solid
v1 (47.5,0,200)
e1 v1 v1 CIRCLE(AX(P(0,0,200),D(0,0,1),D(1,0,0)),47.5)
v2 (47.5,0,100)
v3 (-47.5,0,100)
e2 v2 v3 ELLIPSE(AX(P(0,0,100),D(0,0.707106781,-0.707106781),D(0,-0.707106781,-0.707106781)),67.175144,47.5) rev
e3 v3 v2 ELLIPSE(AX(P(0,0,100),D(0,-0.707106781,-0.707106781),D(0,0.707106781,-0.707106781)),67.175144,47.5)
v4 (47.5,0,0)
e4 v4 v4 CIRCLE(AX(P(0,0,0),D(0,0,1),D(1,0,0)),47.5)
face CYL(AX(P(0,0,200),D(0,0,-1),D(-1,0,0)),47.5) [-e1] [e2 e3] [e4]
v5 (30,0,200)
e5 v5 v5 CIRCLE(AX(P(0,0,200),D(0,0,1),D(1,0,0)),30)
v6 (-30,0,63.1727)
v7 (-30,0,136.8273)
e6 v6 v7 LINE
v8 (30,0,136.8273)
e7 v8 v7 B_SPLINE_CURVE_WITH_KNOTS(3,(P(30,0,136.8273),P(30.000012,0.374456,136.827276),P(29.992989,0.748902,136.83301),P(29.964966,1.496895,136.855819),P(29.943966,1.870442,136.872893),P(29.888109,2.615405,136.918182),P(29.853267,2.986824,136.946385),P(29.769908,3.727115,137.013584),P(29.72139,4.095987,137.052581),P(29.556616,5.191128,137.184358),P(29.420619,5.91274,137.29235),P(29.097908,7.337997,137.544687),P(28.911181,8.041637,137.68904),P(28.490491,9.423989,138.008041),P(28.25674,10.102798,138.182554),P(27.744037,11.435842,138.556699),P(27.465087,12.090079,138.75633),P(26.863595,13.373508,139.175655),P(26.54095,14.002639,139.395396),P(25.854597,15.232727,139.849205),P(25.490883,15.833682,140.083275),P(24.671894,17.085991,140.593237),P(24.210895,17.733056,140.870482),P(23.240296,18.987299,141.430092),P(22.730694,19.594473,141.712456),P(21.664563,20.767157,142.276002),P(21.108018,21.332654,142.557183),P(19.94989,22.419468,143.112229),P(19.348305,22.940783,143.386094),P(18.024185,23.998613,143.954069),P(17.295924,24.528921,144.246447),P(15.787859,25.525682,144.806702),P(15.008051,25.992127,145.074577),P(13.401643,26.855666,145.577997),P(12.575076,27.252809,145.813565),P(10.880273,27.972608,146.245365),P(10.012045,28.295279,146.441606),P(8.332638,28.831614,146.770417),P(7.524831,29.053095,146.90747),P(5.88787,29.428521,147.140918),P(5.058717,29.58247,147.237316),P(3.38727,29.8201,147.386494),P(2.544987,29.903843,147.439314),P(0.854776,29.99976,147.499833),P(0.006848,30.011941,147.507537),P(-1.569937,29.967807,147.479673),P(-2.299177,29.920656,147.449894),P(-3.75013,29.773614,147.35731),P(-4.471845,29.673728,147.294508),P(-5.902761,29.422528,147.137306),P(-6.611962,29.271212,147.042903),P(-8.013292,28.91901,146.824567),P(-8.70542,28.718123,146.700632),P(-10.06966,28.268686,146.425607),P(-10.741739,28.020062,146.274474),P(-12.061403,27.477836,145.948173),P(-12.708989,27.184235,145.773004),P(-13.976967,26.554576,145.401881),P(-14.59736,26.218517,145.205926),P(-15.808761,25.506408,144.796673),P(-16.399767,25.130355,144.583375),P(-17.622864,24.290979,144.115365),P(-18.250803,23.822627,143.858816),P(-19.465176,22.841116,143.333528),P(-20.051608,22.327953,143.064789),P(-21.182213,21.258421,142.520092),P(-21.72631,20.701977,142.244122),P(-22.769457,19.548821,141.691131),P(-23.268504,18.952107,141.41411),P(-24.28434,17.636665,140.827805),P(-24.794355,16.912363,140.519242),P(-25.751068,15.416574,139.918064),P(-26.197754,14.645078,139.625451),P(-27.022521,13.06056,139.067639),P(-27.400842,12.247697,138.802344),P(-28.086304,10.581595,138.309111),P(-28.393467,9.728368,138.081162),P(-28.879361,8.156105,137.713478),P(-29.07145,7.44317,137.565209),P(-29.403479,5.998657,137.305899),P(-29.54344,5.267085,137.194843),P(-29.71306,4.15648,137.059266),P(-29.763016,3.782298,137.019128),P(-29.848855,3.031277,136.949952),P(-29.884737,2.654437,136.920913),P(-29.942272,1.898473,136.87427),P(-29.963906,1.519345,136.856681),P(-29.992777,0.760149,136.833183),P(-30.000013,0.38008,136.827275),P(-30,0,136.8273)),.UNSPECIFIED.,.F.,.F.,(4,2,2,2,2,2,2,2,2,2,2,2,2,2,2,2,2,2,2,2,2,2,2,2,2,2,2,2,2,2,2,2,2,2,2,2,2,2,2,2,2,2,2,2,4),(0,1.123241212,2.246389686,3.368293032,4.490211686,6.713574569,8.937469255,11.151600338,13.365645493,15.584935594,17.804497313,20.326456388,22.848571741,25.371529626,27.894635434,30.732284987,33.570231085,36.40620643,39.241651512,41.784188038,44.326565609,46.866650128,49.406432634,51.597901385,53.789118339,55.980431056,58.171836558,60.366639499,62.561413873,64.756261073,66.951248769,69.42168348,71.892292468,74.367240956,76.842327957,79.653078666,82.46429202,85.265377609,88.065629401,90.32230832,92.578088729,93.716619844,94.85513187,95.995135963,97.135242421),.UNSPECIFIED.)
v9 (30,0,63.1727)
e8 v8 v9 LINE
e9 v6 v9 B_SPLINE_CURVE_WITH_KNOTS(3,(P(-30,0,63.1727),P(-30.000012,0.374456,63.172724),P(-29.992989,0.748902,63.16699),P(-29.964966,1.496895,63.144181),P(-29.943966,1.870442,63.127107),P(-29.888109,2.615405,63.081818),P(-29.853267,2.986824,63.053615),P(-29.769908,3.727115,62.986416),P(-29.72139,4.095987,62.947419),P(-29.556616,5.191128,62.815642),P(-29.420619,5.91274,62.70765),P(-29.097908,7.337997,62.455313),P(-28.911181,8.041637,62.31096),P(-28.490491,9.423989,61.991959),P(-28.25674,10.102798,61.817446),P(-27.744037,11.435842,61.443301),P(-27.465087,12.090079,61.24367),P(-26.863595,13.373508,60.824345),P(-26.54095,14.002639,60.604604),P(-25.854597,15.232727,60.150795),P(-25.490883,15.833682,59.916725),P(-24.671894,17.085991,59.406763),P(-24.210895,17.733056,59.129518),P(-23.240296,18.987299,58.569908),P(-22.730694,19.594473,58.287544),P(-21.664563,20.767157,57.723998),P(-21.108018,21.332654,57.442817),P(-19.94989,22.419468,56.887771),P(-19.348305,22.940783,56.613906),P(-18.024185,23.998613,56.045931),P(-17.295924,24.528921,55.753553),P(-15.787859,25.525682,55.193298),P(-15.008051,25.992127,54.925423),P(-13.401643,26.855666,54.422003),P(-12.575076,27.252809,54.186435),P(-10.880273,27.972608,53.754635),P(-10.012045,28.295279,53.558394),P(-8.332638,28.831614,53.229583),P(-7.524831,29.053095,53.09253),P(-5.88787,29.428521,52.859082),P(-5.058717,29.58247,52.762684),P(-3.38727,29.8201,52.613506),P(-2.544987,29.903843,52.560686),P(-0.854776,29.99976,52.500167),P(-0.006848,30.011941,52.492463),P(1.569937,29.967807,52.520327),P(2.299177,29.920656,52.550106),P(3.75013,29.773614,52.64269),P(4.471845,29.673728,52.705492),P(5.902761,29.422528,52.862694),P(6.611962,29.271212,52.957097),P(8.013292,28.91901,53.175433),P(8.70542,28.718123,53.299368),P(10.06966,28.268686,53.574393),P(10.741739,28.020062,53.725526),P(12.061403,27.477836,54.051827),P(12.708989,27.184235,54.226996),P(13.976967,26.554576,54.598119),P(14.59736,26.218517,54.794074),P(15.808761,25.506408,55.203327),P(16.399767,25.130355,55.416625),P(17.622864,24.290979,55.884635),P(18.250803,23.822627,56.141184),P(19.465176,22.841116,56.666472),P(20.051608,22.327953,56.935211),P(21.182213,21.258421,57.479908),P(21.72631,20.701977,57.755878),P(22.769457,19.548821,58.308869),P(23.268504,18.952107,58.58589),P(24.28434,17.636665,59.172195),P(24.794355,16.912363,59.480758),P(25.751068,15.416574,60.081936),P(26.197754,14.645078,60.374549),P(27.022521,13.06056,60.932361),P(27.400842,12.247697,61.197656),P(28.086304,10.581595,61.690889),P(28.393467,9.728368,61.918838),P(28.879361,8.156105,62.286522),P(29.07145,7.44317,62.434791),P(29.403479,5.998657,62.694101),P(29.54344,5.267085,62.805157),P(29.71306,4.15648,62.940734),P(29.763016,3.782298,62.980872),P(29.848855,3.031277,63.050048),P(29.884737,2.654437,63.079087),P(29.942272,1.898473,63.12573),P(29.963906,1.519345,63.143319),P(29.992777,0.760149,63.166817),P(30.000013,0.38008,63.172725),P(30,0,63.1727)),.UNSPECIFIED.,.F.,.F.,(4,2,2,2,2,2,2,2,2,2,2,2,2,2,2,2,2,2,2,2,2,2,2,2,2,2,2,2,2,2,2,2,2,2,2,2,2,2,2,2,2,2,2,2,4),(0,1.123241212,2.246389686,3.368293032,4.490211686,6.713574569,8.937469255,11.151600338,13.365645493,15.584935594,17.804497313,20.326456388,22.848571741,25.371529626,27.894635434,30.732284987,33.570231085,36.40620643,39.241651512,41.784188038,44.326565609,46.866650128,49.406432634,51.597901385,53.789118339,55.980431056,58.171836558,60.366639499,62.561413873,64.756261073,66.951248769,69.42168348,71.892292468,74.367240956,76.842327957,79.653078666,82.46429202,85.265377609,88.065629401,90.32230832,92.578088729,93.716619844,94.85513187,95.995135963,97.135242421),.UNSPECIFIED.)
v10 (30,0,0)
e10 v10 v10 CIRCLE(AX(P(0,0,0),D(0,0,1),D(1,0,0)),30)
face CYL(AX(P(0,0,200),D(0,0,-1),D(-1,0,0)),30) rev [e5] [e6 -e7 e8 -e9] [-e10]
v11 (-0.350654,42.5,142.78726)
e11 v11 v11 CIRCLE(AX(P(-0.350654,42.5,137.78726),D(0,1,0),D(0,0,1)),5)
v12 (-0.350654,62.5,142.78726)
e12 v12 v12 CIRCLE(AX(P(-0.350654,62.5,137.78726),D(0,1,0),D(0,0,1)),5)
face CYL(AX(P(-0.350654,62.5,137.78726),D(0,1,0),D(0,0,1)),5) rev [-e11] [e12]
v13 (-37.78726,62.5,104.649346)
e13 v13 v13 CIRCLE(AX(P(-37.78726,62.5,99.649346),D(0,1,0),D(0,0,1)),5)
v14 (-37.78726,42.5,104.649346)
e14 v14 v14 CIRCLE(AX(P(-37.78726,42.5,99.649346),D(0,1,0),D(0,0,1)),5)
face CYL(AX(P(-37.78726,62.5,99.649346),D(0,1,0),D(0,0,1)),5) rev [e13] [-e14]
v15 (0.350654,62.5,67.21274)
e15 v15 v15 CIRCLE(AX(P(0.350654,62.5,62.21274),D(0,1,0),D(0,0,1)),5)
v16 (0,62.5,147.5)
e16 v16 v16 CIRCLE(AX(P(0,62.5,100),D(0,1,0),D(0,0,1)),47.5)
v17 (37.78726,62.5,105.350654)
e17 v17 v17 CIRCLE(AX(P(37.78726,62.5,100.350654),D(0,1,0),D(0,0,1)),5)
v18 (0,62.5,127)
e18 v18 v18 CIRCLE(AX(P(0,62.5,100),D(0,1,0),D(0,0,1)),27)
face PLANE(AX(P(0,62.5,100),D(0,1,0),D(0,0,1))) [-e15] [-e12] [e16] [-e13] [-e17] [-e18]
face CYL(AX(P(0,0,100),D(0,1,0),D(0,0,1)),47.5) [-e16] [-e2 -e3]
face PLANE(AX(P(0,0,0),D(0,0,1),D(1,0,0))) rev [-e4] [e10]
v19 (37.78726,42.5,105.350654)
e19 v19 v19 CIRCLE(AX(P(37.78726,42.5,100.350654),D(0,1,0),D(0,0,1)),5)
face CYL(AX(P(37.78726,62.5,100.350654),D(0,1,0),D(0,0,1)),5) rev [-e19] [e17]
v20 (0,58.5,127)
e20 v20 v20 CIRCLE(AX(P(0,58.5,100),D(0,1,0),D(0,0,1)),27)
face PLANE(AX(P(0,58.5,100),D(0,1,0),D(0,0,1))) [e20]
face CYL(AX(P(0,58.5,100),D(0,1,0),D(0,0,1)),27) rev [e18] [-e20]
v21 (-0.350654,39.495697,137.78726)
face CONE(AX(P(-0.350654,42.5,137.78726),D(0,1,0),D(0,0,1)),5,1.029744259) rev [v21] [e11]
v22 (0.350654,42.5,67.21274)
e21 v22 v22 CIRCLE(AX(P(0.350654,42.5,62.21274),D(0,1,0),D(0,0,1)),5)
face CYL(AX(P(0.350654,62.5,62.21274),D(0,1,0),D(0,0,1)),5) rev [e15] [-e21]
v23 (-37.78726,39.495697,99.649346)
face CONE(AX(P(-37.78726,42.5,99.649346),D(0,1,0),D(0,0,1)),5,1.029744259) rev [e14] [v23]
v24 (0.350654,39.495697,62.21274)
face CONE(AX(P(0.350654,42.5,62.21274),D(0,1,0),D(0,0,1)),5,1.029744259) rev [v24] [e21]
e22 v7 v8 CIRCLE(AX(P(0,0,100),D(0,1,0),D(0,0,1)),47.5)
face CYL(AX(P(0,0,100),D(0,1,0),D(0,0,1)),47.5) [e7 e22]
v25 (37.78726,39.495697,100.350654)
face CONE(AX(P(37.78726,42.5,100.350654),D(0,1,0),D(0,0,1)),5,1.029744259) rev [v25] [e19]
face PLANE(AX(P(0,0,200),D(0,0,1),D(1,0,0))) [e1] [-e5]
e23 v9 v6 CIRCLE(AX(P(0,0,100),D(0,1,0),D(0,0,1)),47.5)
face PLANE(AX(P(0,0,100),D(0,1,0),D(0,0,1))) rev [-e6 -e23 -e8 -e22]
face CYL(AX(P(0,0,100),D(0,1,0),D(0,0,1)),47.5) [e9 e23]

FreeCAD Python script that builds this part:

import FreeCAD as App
import Part
import Sketcher
Q = App.Units.Quantity


def add_polygon(sketch, points):
    """Adds a closed chain of lines whose ends are joined by coincident constraints."""
    first, n = sketch.GeometryCount, len(points)
    for a, b in zip(points, points[1:] + points[:1]):
        sketch.addGeometry(Part.LineSegment(App.Vector(*a, 0), App.Vector(*b, 0)), False)
    for i in range(n):
        sketch.addConstraint(Sketcher.Constraint("Coincident", first + i, 2, first + (i + 1) % n, 1))

doc = App.newDocument("Part")
body = doc.addObject("PartDesign::Body", "Body")

# Sketch on XY plane
sketch1 = doc.addObject("Sketcher::SketchObject", "Sketch")
body.addObject(sketch1)
sketch1.AttachmentSupport = (doc.XY_Plane, [""])
sketch1.MapMode = "FlatFace"
sketch1.addGeometry([
    Part.Circle(App.Vector(0, 0, 0), App.Vector(0, 0, 1), 48),
    Part.Circle(App.Vector(0, 0, 0), App.Vector(0, 0, 1), 30),
], False)
sketch1.addConstraint([
    Sketcher.Constraint("Coincident", 0, 3, -1, 1),
    Sketcher.Constraint("Coincident", 1, 3, -1, 1),
    Sketcher.Constraint("Diameter", 0, Q("95 mm")),
    Sketcher.Constraint("Diameter", 1, Q("60 mm")),
])
pad1 = doc.addObject("PartDesign::Pad", "Pad")
body.addObject(pad1)
pad1.Profile = sketch1
pad1.Length = 200

# Sketch on XZ plane
sketch2 = doc.addObject("Sketcher::SketchObject", "Sketch001")
body.addObject(sketch2)
sketch2.AttachmentSupport = (doc.XZ_Plane, [""])
sketch2.MapMode = "FlatFace"
sketch2.AttachmentOffset = App.Placement(App.Vector(0, 0, -62.5), App.Rotation())
sketch2.addGeometry(Part.Circle(App.Vector(0, 100, 0), App.Vector(0, 0, 1), 48), False)
sketch2.addConstraint([
    Sketcher.Constraint("PointOnObject", 0, 3, -2),
    Sketcher.Constraint("Diameter", 0, Q("95 mm")),
    Sketcher.Constraint("DistanceY", -1, 1, 0, 3, Q("100 mm")),
])
pad2 = doc.addObject("PartDesign::Pad", "Pad001")
body.addObject(pad2)
pad2.Profile = sketch2
pad2.Length = 62.5

# Sketch on XZ plane
sketch3 = doc.addObject("Sketcher::SketchObject", "Sketch002")
body.addObject(sketch3)
sketch3.AttachmentSupport = (doc.XZ_Plane, [""])
sketch3.MapMode = "FlatFace"
sketch3.AttachmentOffset = App.Placement(App.Vector(0, 0, -62.5), App.Rotation())
sketch3.addGeometry(Part.Circle(App.Vector(0, 100, 0), App.Vector(0, 0, 1), 27), False)
sketch3.addConstraint([
    Sketcher.Constraint("PointOnObject", 0, 3, -2),
    Sketcher.Constraint("Diameter", 0, Q("54 mm")),
    Sketcher.Constraint("DistanceY", -1, 1, 0, 3, Q("100 mm")),
])
pocket1 = doc.addObject("PartDesign::Pocket", "Pocket")
body.addObject(pocket1)
pocket1.Profile = sketch3
pocket1.Length = 4
pocket1.Reversed = True

# Sketch on YZ plane
sketch4 = doc.addObject("Sketcher::SketchObject", "Sketch003")
body.addObject(sketch4)
sketch4.AttachmentSupport = (doc.YZ_Plane, [""])
sketch4.MapMode = "FlatFace"
sketch4.AttachmentOffset = App.Placement(App.Vector(0, 0, 0.350654), App.Rotation())
add_polygon(sketch4, [(39, 62), (62, 62), (62, 67), (42, 67)])  # lines 0-3
sketch4.addGeometry(Part.LineSegment(App.Vector(62, 62, 0), App.Vector(39, 62, 0)), True)  # axis
sketch4.addConstraint([
    Sketcher.Constraint("Horizontal", 0),
    Sketcher.Constraint("Vertical", 1),
    Sketcher.Constraint("Horizontal", 2),
    Sketcher.Constraint("Horizontal", 4),
    Sketcher.Constraint("Coincident", 4, 1, 0, 2),
    Sketcher.Constraint("Equal", 0, 4),
    Sketcher.Constraint("DistanceX", 2, 2, 2, 1, Q("20 mm")),
    Sketcher.Constraint("DistanceY", 1, 1, 1, 2, Q("5 mm")),
    Sketcher.Constraint("Angle", 3, Q("-121 deg")),
    Sketcher.Constraint("DistanceX", -1, 1, 0, 2, Q("62.5 mm")),
    Sketcher.Constraint("DistanceY", -1, 1, 0, 2, Q("62.21274 mm")),
])
groove = doc.addObject("PartDesign::Groove", "Groove")
body.addObject(groove)
groove.Profile = sketch4
groove.ReferenceAxis = (sketch4, ["Axis0"])
groove.Angle = 360
doc.recompute()

datumline = doc.addObject("PartDesign::Line", "DatumLine")
body.addObject(datumline)
datumline.Placement = App.Placement(App.Vector(0, 0, 100), App.Rotation(App.Vector(0, 0, 1), App.Vector(0, 1, 0)))
polarpattern = doc.addObject("PartDesign::PolarPattern", "PolarPattern")
body.addObject(polarpattern)
polarpattern.Originals = [groove]
polarpattern.Axis = (datumline, [""])
polarpattern.Angle = 360
polarpattern.Occurrences = 4
body.Tip = polarpattern

doc.recompute()
